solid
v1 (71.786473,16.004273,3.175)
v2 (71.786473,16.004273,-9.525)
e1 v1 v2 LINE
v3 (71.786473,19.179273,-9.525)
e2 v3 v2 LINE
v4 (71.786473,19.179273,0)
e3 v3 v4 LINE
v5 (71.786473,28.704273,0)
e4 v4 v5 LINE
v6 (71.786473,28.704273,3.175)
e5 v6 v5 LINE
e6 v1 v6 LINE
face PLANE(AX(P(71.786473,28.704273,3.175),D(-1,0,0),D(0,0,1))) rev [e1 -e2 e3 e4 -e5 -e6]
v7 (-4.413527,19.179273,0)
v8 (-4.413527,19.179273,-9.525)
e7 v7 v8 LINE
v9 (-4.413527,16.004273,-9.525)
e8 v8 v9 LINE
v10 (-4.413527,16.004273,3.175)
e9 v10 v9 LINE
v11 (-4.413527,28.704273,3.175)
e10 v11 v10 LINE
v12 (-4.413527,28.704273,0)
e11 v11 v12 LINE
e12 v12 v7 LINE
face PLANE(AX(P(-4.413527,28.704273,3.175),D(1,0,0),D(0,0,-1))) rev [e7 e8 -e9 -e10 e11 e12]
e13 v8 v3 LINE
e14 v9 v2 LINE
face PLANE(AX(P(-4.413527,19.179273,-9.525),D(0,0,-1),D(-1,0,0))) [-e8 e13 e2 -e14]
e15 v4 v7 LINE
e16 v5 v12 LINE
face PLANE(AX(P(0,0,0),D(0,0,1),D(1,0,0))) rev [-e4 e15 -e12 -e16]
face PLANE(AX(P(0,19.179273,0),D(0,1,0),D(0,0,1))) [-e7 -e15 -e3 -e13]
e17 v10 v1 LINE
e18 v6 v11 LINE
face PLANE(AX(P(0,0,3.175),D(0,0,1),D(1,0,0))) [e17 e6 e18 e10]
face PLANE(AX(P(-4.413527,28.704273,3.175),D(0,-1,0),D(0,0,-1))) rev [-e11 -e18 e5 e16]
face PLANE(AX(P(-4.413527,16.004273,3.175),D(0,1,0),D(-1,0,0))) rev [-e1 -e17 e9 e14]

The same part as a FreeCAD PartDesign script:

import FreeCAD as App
import Part
import Sketcher

V = App.Vector
Q = App.Units.Quantity


def add_polygon(sketch, points):
    """Adds a closed chain of lines whose ends are joined by coincident constraints."""
    first, n = sketch.GeometryCount, len(points)
    for a, b in zip(points, points[1:] + points[:1]):
        sketch.addGeometry(Part.LineSegment(App.Vector(*a, 0), App.Vector(*b, 0)), False)
    for i in range(n):
        sketch.addConstraint(Sketcher.Constraint("Coincident", first + i, 2, first + (i + 1) % n, 1))

doc = App.newDocument("Part")
params = doc.addObject("Spreadsheet::Sheet", "Params")
for row, (alias, value) in enumerate([
    ("sketch1_width", "3 in"),
    ("sketch1_height", "0.5 in"),
    ("pad1_length", "0.125 in"),
    ("sketch2_width", "3 in"),
    ("sketch2_height", "0.375 in"),
    ("pad2_length", "0.125 in"),
], start=1):
    params.set(f"A{row}", alias)
    params.set(f"B{row}", "=" + value)
    params.setAlias(f"B{row}", alias)

body = doc.addObject("PartDesign::Body", "Body")

# Sketch on XY plane
sketch1 = body.newObject("Sketcher::SketchObject", "Sketch")
sketch1.AttachmentSupport = (doc.getObject("XY_Plane"), [""])
sketch1.MapMode = "FlatFace"
add_polygon(sketch1, [(-4.413527, 28.704273), (-4.413527, 16.004273), (71.786473, 16.004273), (71.786473, 28.704273)])  # lines 0-3
sketch1.addConstraint([
    Sketcher.Constraint("Vertical", 0),
    Sketcher.Constraint("Horizontal", 1),
    Sketcher.Constraint("Vertical", 2),
    Sketcher.Constraint("Horizontal", 3),
    Sketcher.Constraint("DistanceX", 1, 1, 1, 2, Q("3 in")),
    Sketcher.Constraint("DistanceY", 0, 2, 0, 1, Q("0.5 in")),
    Sketcher.Constraint("DistanceX", 0, 2, -1, 1, Q("4.413527 mm")),
    Sketcher.Constraint("DistanceY", -1, 1, 0, 2, Q("16.004273 mm")),
])
sketch1.setExpression("Constraints[8]", "Params.sketch1_width")
sketch1.setExpression("Constraints[9]", "Params.sketch1_height")
pad1 = body.newObject("PartDesign::Pad", "Pad")
pad1.Profile = sketch1
pad1.setExpression("Length", "Params.pad1_length")

# Sketch on XZ plane
sketch2 = body.newObject("Sketcher::SketchObject", "Sketch001")
sketch2.AttachmentSupport = (doc.getObject("XZ_Plane"), [""])
sketch2.MapMode = "FlatFace"
sketch2.AttachmentOffset = App.Placement(V(0, 0, -16.004273), App.Rotation())
add_polygon(sketch2, [(71.786473, -9.525), (71.786473, 0), (-4.413527, 0), (-4.413527, -9.525)])  # lines 0-3
sketch2.addConstraint([
    Sketcher.Constraint("Vertical", 0),
    Sketcher.Constraint("Horizontal", 1),
    Sketcher.Constraint("Vertical", 2),
    Sketcher.Constraint("Horizontal", 3),
    Sketcher.Constraint("PointOnObject", 0, 2, -1),
    Sketcher.Constraint("DistanceX", 1, 2, 1, 1, Q("3 in")),
    Sketcher.Constraint("DistanceY", 0, 1, 0, 2, Q("0.375 in")),
    Sketcher.Constraint("DistanceX", -1, 1, 0, 2, Q("71.786473 mm")),
])
sketch2.setExpression("Constraints[9]", "Params.sketch2_width")
sketch2.setExpression("Constraints[10]", "Params.sketch2_height")
pad2 = body.newObject("PartDesign::Pad", "Pad001")
pad2.Profile = sketch2
pad2.setExpression("Length", "Params.pad2_length")
pad2.Reversed = True

doc.recompute()
